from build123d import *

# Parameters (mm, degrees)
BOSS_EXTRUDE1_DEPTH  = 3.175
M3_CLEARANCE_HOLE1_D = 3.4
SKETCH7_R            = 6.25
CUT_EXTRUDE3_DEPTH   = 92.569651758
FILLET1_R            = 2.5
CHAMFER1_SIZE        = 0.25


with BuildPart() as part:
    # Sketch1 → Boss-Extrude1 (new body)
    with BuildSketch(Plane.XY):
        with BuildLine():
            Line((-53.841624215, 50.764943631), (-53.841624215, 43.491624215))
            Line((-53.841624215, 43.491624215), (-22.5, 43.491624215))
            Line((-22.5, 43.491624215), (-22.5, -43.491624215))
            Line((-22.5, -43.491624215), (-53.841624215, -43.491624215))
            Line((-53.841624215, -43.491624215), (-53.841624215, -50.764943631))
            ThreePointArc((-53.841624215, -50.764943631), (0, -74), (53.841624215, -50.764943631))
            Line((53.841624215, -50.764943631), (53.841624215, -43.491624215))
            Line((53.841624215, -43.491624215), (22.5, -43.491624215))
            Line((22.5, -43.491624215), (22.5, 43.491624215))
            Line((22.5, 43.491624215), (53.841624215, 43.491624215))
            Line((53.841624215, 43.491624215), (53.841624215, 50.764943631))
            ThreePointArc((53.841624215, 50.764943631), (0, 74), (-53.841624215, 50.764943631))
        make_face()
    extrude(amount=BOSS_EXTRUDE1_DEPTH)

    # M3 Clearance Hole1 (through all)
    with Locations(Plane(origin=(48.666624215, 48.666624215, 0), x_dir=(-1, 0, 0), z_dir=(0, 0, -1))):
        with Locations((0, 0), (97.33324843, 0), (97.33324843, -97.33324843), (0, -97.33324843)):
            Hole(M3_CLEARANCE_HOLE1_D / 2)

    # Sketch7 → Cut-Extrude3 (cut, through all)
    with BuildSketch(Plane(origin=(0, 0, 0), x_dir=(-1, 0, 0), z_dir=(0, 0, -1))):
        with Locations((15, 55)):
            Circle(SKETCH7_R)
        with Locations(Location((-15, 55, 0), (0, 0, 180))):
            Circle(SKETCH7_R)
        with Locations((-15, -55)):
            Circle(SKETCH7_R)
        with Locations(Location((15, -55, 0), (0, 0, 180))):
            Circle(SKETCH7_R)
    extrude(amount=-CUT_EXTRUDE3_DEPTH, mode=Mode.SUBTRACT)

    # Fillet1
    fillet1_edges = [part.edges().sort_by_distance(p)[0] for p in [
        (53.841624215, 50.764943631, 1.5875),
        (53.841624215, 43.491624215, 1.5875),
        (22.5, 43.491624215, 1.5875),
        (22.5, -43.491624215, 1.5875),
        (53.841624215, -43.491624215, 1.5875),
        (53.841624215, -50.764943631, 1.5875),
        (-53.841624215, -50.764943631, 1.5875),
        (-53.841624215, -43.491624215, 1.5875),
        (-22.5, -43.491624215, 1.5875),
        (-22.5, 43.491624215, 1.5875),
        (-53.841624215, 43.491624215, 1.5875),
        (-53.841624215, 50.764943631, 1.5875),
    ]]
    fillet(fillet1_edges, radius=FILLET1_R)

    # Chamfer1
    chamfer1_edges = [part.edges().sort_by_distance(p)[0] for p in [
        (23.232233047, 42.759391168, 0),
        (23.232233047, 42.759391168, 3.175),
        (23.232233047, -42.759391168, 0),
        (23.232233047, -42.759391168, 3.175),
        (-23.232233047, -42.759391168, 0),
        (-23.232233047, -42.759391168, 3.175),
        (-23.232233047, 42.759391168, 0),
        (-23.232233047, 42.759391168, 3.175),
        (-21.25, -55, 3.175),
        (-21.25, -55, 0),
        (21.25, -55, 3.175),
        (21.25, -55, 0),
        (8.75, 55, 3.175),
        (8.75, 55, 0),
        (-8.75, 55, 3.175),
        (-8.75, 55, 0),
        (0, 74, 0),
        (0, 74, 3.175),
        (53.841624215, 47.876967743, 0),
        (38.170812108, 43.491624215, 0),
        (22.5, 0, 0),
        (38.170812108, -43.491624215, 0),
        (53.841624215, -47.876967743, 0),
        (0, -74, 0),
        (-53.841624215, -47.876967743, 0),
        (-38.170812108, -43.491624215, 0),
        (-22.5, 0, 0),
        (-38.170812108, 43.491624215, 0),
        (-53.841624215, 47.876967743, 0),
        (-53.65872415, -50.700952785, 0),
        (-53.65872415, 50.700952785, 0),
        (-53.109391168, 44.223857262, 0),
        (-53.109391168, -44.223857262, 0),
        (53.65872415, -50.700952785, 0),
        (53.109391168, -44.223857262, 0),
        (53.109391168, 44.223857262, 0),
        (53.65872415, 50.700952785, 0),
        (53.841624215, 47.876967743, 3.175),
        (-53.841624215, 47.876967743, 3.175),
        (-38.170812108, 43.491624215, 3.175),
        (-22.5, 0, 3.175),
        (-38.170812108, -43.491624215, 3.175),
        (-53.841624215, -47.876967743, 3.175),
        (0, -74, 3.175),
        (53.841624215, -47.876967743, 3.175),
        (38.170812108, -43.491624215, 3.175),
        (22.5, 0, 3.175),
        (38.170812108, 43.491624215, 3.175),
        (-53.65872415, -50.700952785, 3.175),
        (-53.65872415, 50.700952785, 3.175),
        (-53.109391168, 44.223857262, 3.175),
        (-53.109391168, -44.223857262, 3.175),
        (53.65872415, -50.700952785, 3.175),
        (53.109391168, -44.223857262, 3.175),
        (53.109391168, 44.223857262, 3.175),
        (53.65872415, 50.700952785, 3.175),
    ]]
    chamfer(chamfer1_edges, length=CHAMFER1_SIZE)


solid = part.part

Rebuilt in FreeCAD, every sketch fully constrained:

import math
import FreeCAD as App
import Part
import Sketcher

V = App.Vector
Q = App.Units.Quantity


def edges_at(feature, points):
    """Names of the edges that pass closest to the given points."""
    edges = feature.Shape.Edges
    near = lambda p: min(range(len(edges)), key=lambda i: edges[i].distToShape(Part.Vertex(*p))[0])
    return sorted({f"Edge{near(p) + 1}" for p in points})

doc = App.newDocument("Part")
body = doc.addObject("PartDesign::Body", "Body")

# Sketch on XY plane
sketch1 = body.newObject("Sketcher::SketchObject", "Sketch")
sketch1.AttachmentSupport = (doc.getObject("XY_Plane"), [""])
sketch1.MapMode = "FlatFace"
sketch1.addGeometry(Part.LineSegment(V(-54, 51, 0), V(-54, 43, 0)), False)
sketch1.addGeometry(Part.LineSegment(V(-54, 43, 0), V(-22, 43, 0)), False)
sketch1.addGeometry(Part.LineSegment(V(-22, 43, 0), V(-22, -43, 0)), False)
sketch1.addGeometry(Part.LineSegment(V(-22, -43, 0), V(-54, -43, 0)), False)
sketch1.addGeometry(Part.LineSegment(V(-54, -43, 0), V(-54, -51, 0)), False)
sketch1.addGeometry(Part.ArcOfCircle(Part.Circle(V(0, 0, 0), V(0, 0, 1), 74), math.radians(-137), math.radians(-43)), False)
sketch1.addGeometry(Part.LineSegment(V(54, -51, 0), V(54, -43, 0)), False)
sketch1.addGeometry(Part.LineSegment(V(54, -43, 0), V(22, -43, 0)), False)
sketch1.addGeometry(Part.LineSegment(V(22, -43, 0), V(22, 43, 0)), False)
sketch1.addGeometry(Part.LineSegment(V(22, 43, 0), V(54, 43, 0)), False)
sketch1.addGeometry(Part.LineSegment(V(54, 43, 0), V(54, 51, 0)), False)
sketch1.addGeometry(Part.ArcOfCircle(Part.Circle(V(0, 0, 0), V(0, 0, 1), 74), math.radians(43), math.radians(137)), False)
sketch1.addConstraint(Sketcher.Constraint("Coincident", 0, 2, 1, 1))
sketch1.addConstraint(Sketcher.Constraint("Coincident", 1, 2, 2, 1))
sketch1.addConstraint(Sketcher.Constraint("Coincident", 2, 2, 3, 1))
sketch1.addConstraint(Sketcher.Constraint("Coincident", 3, 2, 4, 1))
sketch1.addConstraint(Sketcher.Constraint("Coincident", 4, 2, 5, 1))
sketch1.addConstraint(Sketcher.Constraint("Coincident", 5, 2, 6, 1))
sketch1.addConstraint(Sketcher.Constraint("Coincident", 6, 2, 7, 1))
sketch1.addConstraint(Sketcher.Constraint("Coincident", 7, 2, 8, 1))
sketch1.addConstraint(Sketcher.Constraint("Coincident", 8, 2, 9, 1))
sketch1.addConstraint(Sketcher.Constraint("Coincident", 9, 2, 10, 1))
sketch1.addConstraint(Sketcher.Constraint("Coincident", 10, 2, 11, 1))
sketch1.addConstraint(Sketcher.Constraint("Coincident", 11, 2, 0, 1))
sketch1.addConstraint(Sketcher.Constraint("Vertical", 0))
sketch1.addConstraint(Sketcher.Constraint("Horizontal", 1))
sketch1.addConstraint(Sketcher.Constraint("Vertical", 2))
sketch1.addConstraint(Sketcher.Constraint("Horizontal", 3))
sketch1.addConstraint(Sketcher.Constraint("Vertical", 4))
sketch1.addConstraint(Sketcher.Constraint("Vertical", 6))
sketch1.addConstraint(Sketcher.Constraint("Horizontal", 7))
sketch1.addConstraint(Sketcher.Constraint("Vertical", 8))
sketch1.addConstraint(Sketcher.Constraint("Horizontal", 9))
sketch1.addConstraint(Sketcher.Constraint("Vertical", 10))
sketch1.addConstraint(Sketcher.Constraint("Coincident", 5, 3, -1, 1))
sketch1.addConstraint(Sketcher.Constraint("Coincident", 11, 3, -1, 1))
sketch1.addConstraint(Sketcher.Constraint("Equal", 5, 11))
sketch1.addConstraint(Sketcher.Constraint("Symmetric", 0, 2, 6, 2, -1, 1))
sketch1.addConstraint(Sketcher.Constraint("Symmetric", 2, 2, 8, 2, -1, 1))
sketch1.addConstraint(Sketcher.Constraint("Symmetric", 3, 2, 6, 2, -2))
sketch1.addConstraint(Sketcher.Constraint("Horizontal", 10, 2, 11, 2))
sketch1.addConstraint(Sketcher.Constraint("Radius", 5, Q("74 mm")))
sketch1.addConstraint(Sketcher.Constraint("DistanceX", 2, 2, 7, 2, Q("45 mm")))
sketch1.addConstraint(Sketcher.Constraint("DistanceY", 0, 2, 0, 1, Q("7.273319 mm")))
sketch1.addConstraint(Sketcher.Constraint("DistanceY", 2, 2, 2, 1, Q("86.983248 mm")))
pad1 = body.newObject("PartDesign::Pad", "Pad")
pad1.Profile = sketch1
pad1.Length = 3.175

# Sketch on XY plane
sketch2 = body.newObject("Sketcher::SketchObject", "Sketch001")
sketch2.AttachmentSupport = (doc.getObject("XY_Plane"), [""])
sketch2.MapMode = "FlatFace"
sketch2.addGeometry(Part.Circle(V(48.7, 48.7, 0), V(0, 0, 1), 1.7), False)
sketch2.addGeometry(Part.Circle(V(-48.7, 48.7, 0), V(0, 0, 1), 1.7), False)
sketch2.addGeometry(Part.Circle(V(-48.7, -48.7, 0), V(0, 0, 1), 1.7), False)
sketch2.addGeometry(Part.Circle(V(48.7, -48.7, 0), V(0, 0, 1), 1.7), False)
sketch2.addConstraint(Sketcher.Constraint("Equal", 0, 1))
sketch2.addConstraint(Sketcher.Constraint("Equal", 1, 2))
sketch2.addConstraint(Sketcher.Constraint("Equal", 2, 3))
sketch2.addConstraint(Sketcher.Constraint("Symmetric", 0, 3, 2, 3, -1, 1))
sketch2.addConstraint(Sketcher.Constraint("Symmetric", 1, 3, 3, 3, -1, 1))
sketch2.addConstraint(Sketcher.Constraint("Symmetric", 0, 3, 1, 3, -2))
sketch2.addConstraint(Sketcher.Constraint("Diameter", 0, Q("3.4 mm")))
sketch2.addConstraint(Sketcher.Constraint("DistanceX", 1, 3, 0, 3, Q("97.333248 mm")))
sketch2.addConstraint(Sketcher.Constraint("DistanceY", 2, 3, 1, 3, Q("97.333248 mm")))
doc.recompute()
hole = body.newObject("PartDesign::Hole", "Hole")
hole.Profile = sketch2
hole.ThreadType = "None"
hole.Diameter = 3.4
hole.DepthType = "ThroughAll"
hole.Reversed = True

# Sketch on XY plane
sketch3 = body.newObject("Sketcher::SketchObject", "Sketch002")
sketch3.AttachmentSupport = (doc.getObject("XY_Plane"), [""])
sketch3.MapMode = "FlatFace"
sketch3.addGeometry(Part.Circle(V(-15, 55, 0), V(0, 0, 1), 6), False)
sketch3.addGeometry(Part.Circle(V(15, 55, 0), V(0, 0, 1), 6), False)
sketch3.addGeometry(Part.Circle(V(15, -55, 0), V(0, 0, 1), 6), False)
sketch3.addGeometry(Part.Circle(V(-15, -55, 0), V(0, 0, 1), 6), False)
sketch3.addConstraint(Sketcher.Constraint("Equal", 0, 1))
sketch3.addConstraint(Sketcher.Constraint("Equal", 1, 2))
sketch3.addConstraint(Sketcher.Constraint("Equal", 2, 3))
sketch3.addConstraint(Sketcher.Constraint("Symmetric", 0, 3, 2, 3, -1, 1))
sketch3.addConstraint(Sketcher.Constraint("Symmetric", 1, 3, 3, 3, -1, 1))
sketch3.addConstraint(Sketcher.Constraint("Symmetric", 0, 3, 1, 3, -2))
sketch3.addConstraint(Sketcher.Constraint("Diameter", 0, Q("12.5 mm")))
sketch3.addConstraint(Sketcher.Constraint("DistanceX", 0, 3, -1, 1, Q("15 mm")))
sketch3.addConstraint(Sketcher.Constraint("DistanceY", -1, 1, 0, 3, Q("55 mm")))
pocket1 = body.newObject("PartDesign::Pocket", "Pocket")
pocket1.Profile = sketch3
pocket1.Type = "ThroughAll"
pocket1.Reversed = True
doc.recompute()

fillet = body.newObject("PartDesign::Fillet", "Fillet")
fillet.Base = (pocket1, edges_at(pocket1, [
    (53.842, 50.765, 1.587),
    (53.842, 43.492, 1.587),
    (22.5, 43.492, 1.587),
    (22.5, -43.492, 1.587),
    (53.842, -43.492, 1.587),
    (53.842, -50.765, 1.587),
    (-53.842, -50.765, 1.587),
    (-53.842, -43.492, 1.587),
    (-22.5, -43.492, 1.587),
    (-22.5, 43.492, 1.587),
    (-53.842, 43.492, 1.587),
    (-53.842, 50.765, 1.587),
]))
fillet.Radius = 2.5
doc.recompute()

chamfer = body.newObject("PartDesign::Chamfer", "Chamfer")
chamfer.Base = (fillet, edges_at(fillet, [
    (23.232, 42.759, 0),
    (23.232, 42.759, 3.175),
    (23.232, -42.759, 0),
    (23.232, -42.759, 3.175),
    (-23.232, -42.759, 0),
    (-23.232, -42.759, 3.175),
    (-23.232, 42.759, 0),
    (-23.232, 42.759, 3.175),
    (-21.25, -55, 3.175),
    (-21.25, -55, 0),
    (21.25, -55, 3.175),
    (21.25, -55, 0),
    (8.75, 55, 3.175),
    (8.75, 55, 0),
    (-8.75, 55, 3.175),
    (-8.75, 55, 0),
    (0, 74, 0),
    (0, 74, 3.175),
    (53.842, 47.877, 0),
    (38.171, 43.492, 0),
    (22.5, 0, 0),
    (38.171, -43.492, 0),
    (53.842, -47.877, 0),
    (0, -74, 0),
    (-53.842, -47.877, 0),
    (-38.171, -43.492, 0),
    (-22.5, 0, 0),
    (-38.171, 43.492, 0),
    (-53.842, 47.877, 0),
    (-53.659, -50.701, 0),
    (-53.659, 50.701, 0),
    (-53.109, 44.224, 0),
    (-53.109, -44.224, 0),
    (53.659, -50.701, 0),
    (53.109, -44.224, 0),
    (53.109, 44.224, 0),
    (53.659, 50.701, 0),
    (53.842, 47.877, 3.175),
    (-53.842, 47.877, 3.175),
    (-38.171, 43.492, 3.175),
    (-22.5, 0, 3.175),
    (-38.171, -43.492, 3.175),
    (-53.842, -47.877, 3.175),
    (0, -74, 3.175),
    (53.842, -47.877, 3.175),
    (38.171, -43.492, 3.175),
    (22.5, 0, 3.175),
    (38.171, 43.492, 3.175),
    (-53.659, -50.701, 3.175),
    (-53.659, 50.701, 3.175),
    (-53.109, 44.224, 3.175),
    (-53.109, -44.224, 3.175),
    (53.659, -50.701, 3.175),
    (53.109, -44.224, 3.175),
    (53.109, 44.224, 3.175),
    (53.659, 50.701, 3.175),
]))
chamfer.Size = 0.25

doc.recompute()
